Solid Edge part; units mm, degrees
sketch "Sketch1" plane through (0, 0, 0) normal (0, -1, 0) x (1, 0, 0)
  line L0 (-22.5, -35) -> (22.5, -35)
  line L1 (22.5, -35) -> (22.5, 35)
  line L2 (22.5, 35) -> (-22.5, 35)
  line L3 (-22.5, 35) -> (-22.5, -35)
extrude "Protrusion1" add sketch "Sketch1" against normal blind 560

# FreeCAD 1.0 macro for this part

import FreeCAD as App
import Part
import Sketcher


def add_polygon(sketch, points):
    """Adds a closed chain of lines whose ends are joined by coincident constraints."""
    first, n = sketch.GeometryCount, len(points)
    for a, b in zip(points, points[1:] + points[:1]):
        sketch.addGeometry(Part.LineSegment(App.Vector(*a, 0), App.Vector(*b, 0)), False)
    for i in range(n):
        sketch.addConstraint(Sketcher.Constraint("Coincident", first + i, 2, first + (i + 1) % n, 1))

doc = App.newDocument("Part")
params = doc.addObject("Spreadsheet::Sheet", "Params")
for row, (alias, value) in enumerate([
    ("sketch1_width", "45 mm"),
    ("sketch1_height", "70 mm"),
    ("pad1_length", "560 mm"),
], start=1):
    params.set(f"A{row}", alias)
    params.set(f"B{row}", "=" + value)
    params.setAlias(f"B{row}", alias)

body = doc.addObject("PartDesign::Body", "Body")

sketch1 = body.newObject("Sketcher::SketchObject", "Sketch")
sketch1.AttachmentSupport = (doc.getObject("XZ_Plane"), [""])
sketch1.MapMode = "FlatFace"
add_polygon(sketch1, [(-22, 35), (-22, -35), (22, -35), (22, 35)])
sketch1.addConstraint(Sketcher.Constraint("Vertical", 0))
sketch1.addConstraint(Sketcher.Constraint("Horizontal", 1))
sketch1.addConstraint(Sketcher.Constraint("Vertical", 2))
sketch1.addConstraint(Sketcher.Constraint("Horizontal", 3))
sketch1.addConstraint(Sketcher.Constraint("Symmetric", 0, 2, 2, 2, -1, 1))
sketch1.addConstraint(Sketcher.Constraint("DistanceX", 1, 1, 1, 2, 45.0))
sketch1.addConstraint(Sketcher.Constraint("DistanceY", 0, 2, 0, 1, 70.0))
sketch1.setExpression("Constraints[9]", "Params.sketch1_width")
sketch1.setExpression("Constraints[10]", "Params.sketch1_height")
pad1 = body.newObject("PartDesign::Pad", "Pad")
pad1.Profile = sketch1
pad1.setExpression("Length", "Params.pad1_length")
pad1.Reversed = True

doc.recompute()
